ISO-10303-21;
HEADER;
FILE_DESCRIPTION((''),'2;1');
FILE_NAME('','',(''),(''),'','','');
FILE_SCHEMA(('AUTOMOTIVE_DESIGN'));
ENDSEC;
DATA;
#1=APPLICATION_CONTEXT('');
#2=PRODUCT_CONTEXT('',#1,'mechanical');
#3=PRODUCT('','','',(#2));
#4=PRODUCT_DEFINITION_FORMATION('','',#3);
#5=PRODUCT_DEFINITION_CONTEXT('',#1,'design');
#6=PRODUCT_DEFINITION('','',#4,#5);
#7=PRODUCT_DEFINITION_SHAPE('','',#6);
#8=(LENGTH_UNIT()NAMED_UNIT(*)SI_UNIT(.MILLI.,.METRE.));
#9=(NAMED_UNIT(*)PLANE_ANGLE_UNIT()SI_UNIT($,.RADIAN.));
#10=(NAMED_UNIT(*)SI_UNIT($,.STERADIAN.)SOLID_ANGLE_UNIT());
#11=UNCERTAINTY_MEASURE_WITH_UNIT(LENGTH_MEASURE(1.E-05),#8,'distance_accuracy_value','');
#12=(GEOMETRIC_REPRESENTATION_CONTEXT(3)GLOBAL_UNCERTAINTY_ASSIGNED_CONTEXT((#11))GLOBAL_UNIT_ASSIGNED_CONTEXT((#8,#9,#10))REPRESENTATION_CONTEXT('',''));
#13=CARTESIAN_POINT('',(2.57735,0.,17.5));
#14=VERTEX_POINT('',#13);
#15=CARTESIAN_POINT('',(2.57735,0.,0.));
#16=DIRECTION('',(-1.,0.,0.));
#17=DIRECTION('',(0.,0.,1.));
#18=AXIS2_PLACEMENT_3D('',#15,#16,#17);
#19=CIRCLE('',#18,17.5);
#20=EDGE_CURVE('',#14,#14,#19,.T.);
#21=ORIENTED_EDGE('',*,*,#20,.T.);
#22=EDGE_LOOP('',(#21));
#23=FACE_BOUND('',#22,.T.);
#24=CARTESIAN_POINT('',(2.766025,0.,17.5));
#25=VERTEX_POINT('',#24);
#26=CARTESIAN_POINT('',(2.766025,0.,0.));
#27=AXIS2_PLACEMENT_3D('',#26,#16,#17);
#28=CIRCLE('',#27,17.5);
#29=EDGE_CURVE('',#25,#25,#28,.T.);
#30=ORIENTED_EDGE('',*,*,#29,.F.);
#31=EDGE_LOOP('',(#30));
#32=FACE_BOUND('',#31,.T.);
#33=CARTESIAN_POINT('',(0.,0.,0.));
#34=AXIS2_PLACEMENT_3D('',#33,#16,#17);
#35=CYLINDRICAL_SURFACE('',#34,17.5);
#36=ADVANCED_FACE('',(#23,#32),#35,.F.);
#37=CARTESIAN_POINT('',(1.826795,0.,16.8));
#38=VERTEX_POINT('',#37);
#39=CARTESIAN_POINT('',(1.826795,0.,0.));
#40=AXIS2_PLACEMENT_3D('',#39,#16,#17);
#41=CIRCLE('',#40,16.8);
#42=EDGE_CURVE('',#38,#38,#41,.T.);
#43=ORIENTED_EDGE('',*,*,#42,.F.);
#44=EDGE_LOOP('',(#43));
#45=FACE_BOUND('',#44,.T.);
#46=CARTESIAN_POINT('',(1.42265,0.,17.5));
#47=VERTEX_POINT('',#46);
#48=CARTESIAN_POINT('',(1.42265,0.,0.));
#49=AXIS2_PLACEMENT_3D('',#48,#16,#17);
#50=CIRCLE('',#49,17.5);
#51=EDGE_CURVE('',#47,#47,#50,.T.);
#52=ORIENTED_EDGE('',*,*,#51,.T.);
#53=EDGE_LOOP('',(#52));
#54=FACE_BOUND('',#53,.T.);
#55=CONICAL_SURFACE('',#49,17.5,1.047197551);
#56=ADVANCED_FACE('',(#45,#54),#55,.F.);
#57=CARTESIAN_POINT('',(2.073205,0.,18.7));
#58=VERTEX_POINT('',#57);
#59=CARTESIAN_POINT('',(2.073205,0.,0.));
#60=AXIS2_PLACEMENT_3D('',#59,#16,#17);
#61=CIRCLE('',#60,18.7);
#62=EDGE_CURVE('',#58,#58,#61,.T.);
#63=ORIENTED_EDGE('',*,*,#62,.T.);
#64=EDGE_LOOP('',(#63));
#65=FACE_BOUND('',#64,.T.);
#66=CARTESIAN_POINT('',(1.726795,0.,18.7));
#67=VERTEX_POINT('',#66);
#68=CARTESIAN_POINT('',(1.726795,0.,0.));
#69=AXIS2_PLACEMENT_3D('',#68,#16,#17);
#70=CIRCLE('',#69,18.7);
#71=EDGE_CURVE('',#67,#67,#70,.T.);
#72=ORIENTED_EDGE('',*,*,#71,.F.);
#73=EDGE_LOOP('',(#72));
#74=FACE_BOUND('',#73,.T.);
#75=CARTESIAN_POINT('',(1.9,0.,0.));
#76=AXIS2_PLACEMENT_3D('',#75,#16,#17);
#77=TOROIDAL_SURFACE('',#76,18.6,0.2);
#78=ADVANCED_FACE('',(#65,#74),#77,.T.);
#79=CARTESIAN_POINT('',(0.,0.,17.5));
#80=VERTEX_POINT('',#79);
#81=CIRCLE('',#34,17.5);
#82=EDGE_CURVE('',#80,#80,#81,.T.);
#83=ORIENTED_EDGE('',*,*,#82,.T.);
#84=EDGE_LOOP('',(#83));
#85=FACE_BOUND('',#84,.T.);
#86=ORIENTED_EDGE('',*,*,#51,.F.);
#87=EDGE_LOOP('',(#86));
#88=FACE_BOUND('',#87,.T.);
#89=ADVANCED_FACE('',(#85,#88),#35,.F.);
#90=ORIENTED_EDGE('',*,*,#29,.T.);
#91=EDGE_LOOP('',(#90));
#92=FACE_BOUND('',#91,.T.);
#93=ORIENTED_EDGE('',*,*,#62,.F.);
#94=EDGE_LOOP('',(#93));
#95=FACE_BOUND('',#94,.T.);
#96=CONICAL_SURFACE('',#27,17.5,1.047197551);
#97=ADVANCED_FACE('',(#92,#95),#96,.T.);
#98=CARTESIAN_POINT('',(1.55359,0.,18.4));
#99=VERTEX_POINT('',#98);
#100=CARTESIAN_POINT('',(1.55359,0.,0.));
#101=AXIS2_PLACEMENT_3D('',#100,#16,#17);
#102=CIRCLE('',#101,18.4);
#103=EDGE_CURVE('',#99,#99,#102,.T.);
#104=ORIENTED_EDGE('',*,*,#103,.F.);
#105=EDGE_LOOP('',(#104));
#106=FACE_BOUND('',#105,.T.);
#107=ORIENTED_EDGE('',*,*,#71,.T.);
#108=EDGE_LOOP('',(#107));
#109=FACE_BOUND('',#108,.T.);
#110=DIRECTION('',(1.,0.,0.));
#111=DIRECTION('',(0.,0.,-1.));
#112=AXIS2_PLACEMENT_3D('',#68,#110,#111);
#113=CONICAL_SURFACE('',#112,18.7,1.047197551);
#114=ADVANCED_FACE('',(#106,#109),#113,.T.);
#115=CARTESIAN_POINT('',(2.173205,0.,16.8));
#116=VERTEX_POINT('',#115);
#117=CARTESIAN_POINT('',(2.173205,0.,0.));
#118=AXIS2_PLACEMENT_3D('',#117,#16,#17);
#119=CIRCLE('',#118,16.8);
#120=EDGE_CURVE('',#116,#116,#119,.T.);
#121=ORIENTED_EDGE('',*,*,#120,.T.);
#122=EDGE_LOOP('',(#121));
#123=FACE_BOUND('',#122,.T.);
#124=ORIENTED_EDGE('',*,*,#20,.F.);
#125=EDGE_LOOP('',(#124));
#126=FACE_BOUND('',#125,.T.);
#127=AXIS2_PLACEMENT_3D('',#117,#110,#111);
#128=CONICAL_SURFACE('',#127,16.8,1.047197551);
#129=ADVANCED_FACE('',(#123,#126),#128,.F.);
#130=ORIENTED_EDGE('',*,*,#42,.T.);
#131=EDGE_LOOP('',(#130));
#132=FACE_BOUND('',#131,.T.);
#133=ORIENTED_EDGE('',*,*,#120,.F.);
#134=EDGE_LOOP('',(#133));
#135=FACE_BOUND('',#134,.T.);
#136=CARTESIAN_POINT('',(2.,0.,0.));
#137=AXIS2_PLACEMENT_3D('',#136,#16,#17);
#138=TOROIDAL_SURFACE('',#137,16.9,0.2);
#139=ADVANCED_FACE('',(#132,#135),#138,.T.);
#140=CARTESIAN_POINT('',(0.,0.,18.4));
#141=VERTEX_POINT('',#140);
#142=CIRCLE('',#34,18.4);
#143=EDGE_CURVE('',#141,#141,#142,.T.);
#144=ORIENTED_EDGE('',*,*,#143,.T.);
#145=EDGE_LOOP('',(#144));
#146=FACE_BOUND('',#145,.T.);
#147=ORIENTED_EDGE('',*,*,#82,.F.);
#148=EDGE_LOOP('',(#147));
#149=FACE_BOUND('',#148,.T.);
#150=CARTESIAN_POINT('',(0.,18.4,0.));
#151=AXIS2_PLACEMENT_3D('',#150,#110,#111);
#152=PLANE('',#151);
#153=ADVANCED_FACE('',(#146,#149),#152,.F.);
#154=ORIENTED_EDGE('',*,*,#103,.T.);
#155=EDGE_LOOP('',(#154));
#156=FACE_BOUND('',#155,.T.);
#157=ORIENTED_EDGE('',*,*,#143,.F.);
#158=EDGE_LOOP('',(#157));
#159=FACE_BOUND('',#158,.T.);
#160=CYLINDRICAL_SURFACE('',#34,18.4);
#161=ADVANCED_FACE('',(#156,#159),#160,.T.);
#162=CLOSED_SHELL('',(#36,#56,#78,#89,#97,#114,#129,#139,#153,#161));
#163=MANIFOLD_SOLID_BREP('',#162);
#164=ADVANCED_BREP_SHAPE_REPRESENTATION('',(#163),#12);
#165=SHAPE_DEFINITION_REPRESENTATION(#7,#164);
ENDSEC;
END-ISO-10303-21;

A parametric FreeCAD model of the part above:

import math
import FreeCAD as App
import Part
import Sketcher

V = App.Vector
Q = App.Units.Quantity

doc = App.newDocument("Part")
body = doc.addObject("PartDesign::Body", "Body")

# Sketch on XY plane
sketch1 = body.newObject("Sketcher::SketchObject", "Sketch")
sketch1.AttachmentSupport = (doc.getObject("XY_Plane"), [""])
sketch1.MapMode = "FlatFace"
sketch1.addGeometry([
    Part.LineSegment(V(1.55359, 18.4, 0), V(0, 18.4, 0)),  # 0
    Part.LineSegment(V(0, 18.4, 0), V(0, 17.5, 0)),  # 1
    Part.LineSegment(V(0, 17.5, 0), V(1.42265, 17.5, 0)),  # 2
    Part.LineSegment(V(1.42265, 17.5, 0), V(1.826795, 16.8, 0)),  # 3
    Part.ArcOfCircle(Part.Circle(V(2, 16.9, 0), V(0, 0, 1), 0.2), math.radians(-150), math.radians(-30)),  # 4
    Part.LineSegment(V(2.173205, 16.8, 0), V(2.57735, 17.5, 0)),  # 5
    Part.LineSegment(V(2.57735, 17.5, 0), V(2.766025, 17.5, 0)),  # 6
    Part.LineSegment(V(2.766025, 17.5, 0), V(2.073205, 18.7, 0)),  # 7
    Part.ArcOfCircle(Part.Circle(V(1.9, 18.6, 0), V(0, 0, 1), 0.2), math.radians(30), math.radians(150)),  # 8
    Part.LineSegment(V(1.726795, 18.7, 0), V(1.55359, 18.4, 0)),  # 9
], False)
sketch1.addConstraint([
    Sketcher.Constraint("Coincident", 0, 2, 1, 1),
    Sketcher.Constraint("Coincident", 1, 2, 2, 1),
    Sketcher.Constraint("Coincident", 2, 2, 3, 1),
    Sketcher.Constraint("Tangent", 3, 2, 4, 1),
    Sketcher.Constraint("Tangent", 4, 2, 5, 1),
    Sketcher.Constraint("Coincident", 5, 2, 6, 1),
    Sketcher.Constraint("Coincident", 6, 2, 7, 1),
    Sketcher.Constraint("Tangent", 7, 2, 8, 1),
    Sketcher.Constraint("Tangent", 8, 2, 9, 1),
    Sketcher.Constraint("Coincident", 9, 2, 0, 1),
    Sketcher.Constraint("Horizontal", 0),
    Sketcher.Constraint("Vertical", 1),
    Sketcher.Constraint("Horizontal", 2),
    Sketcher.Constraint("Horizontal", 6),
    Sketcher.Constraint("Equal", 4, 8),
    Sketcher.Constraint("PointOnObject", 0, 2, -2),
    Sketcher.Constraint("Parallel", 3, 7),
    Sketcher.Constraint("Parallel", 5, 9),
    Sketcher.Constraint("Horizontal", 3, 2, 4, 2),
    Sketcher.Constraint("Horizontal", 2, 2, 5, 2),
    Sketcher.Constraint("Radius", 4, Q("0.2 mm")),
    Sketcher.Constraint("Angle", 3, Q("-60 deg")),
    Sketcher.Constraint("DistanceY", 1, 2, 1, 1, Q("0.9 mm")),
    Sketcher.Constraint("DistanceX", -1, 1, 4, 3, Q("2 mm")),
    Sketcher.Constraint("DistanceY", -1, 1, 4, 3, Q("16.9 mm")),
    Sketcher.Constraint("DistanceX", -1, 1, 8, 3, Q("1.9 mm")),
    Sketcher.Constraint("DistanceY", -1, 1, 8, 3, Q("18.6 mm")),
    Sketcher.Constraint("DistanceY", -1, 1, 0, 2, Q("18.4 mm")),
])
revolution = body.newObject("PartDesign::Revolution", "Revolution")
revolution.Profile = sketch1
revolution.ReferenceAxis = (sketch1, ["H_Axis"])
revolution.Angle = 360

doc.recompute()
